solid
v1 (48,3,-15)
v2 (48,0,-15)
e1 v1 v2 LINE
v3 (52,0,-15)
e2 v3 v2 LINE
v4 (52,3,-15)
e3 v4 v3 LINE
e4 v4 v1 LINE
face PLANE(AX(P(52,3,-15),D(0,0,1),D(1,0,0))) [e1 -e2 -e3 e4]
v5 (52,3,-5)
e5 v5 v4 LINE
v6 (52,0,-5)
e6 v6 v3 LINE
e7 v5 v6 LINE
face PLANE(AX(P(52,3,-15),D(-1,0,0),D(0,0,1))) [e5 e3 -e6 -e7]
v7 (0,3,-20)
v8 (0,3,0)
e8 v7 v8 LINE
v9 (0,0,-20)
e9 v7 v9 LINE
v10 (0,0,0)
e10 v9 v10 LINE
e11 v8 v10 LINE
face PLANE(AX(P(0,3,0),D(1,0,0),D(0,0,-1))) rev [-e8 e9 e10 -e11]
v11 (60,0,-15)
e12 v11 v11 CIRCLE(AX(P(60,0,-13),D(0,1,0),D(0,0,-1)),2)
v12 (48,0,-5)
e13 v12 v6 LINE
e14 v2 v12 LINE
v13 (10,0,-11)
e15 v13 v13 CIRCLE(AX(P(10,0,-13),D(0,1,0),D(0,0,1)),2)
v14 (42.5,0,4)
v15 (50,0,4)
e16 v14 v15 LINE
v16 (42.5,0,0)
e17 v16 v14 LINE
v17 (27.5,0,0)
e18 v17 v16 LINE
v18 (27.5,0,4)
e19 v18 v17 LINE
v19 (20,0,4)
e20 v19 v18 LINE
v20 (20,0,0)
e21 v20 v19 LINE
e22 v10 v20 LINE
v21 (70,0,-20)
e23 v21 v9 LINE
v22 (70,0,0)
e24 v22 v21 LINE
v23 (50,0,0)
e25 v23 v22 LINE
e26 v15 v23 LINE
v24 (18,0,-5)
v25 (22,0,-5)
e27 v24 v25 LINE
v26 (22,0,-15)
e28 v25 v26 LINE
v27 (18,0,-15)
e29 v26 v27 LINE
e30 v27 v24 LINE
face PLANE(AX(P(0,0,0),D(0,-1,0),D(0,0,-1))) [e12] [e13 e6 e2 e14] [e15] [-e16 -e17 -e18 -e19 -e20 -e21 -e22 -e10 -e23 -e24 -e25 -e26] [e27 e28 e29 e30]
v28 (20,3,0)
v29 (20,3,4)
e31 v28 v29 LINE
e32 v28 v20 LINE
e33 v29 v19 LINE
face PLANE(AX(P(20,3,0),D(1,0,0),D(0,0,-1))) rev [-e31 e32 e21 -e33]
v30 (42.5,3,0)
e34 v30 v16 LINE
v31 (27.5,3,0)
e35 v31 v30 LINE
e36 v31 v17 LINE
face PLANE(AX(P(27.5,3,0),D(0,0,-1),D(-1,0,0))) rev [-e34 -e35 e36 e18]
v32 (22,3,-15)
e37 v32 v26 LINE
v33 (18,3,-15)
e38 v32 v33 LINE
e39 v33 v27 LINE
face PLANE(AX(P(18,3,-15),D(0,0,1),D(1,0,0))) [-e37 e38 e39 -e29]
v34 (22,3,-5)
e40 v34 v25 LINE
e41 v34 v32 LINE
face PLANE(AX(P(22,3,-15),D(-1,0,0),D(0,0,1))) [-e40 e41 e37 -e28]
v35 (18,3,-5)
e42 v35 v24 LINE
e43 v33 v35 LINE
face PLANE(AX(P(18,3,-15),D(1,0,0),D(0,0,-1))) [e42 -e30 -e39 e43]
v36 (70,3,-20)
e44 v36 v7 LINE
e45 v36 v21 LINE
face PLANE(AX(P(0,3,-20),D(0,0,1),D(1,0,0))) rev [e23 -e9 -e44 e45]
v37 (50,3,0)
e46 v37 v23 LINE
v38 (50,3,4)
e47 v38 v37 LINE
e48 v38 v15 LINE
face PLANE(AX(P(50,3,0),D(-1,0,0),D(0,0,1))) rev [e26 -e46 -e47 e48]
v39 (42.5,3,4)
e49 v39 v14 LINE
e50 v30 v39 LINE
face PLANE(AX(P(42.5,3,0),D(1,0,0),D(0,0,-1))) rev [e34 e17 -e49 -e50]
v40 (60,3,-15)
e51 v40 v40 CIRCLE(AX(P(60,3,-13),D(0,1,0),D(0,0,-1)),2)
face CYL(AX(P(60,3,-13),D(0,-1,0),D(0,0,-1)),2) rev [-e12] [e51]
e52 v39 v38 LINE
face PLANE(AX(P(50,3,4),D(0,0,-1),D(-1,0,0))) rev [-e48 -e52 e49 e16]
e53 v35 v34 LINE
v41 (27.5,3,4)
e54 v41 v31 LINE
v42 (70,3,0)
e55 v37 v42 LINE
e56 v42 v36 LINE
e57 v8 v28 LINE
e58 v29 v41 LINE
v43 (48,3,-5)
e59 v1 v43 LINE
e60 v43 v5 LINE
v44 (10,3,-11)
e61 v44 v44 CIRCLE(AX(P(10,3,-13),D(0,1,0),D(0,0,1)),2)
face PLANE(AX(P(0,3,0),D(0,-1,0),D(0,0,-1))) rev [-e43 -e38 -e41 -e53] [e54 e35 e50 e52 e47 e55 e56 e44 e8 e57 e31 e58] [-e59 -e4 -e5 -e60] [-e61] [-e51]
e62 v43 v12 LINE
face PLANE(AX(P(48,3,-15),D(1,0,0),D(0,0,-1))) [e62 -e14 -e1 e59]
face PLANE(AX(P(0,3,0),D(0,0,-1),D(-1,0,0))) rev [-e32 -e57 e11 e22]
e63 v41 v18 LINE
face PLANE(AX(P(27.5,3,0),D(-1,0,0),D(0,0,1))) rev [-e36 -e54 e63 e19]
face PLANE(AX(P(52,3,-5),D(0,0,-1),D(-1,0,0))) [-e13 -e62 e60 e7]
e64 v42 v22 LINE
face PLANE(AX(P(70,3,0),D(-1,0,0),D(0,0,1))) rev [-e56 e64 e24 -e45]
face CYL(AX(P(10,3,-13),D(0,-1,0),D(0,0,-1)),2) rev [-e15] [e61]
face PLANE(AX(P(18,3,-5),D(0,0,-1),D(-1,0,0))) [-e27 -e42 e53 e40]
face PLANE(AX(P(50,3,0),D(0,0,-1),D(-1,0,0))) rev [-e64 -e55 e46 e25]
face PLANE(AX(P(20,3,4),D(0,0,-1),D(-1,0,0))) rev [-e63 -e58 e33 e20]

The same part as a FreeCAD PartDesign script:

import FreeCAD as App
import Part
import Sketcher
Q = App.Units.Quantity

doc = App.newDocument("Part")
body = doc.addObject("PartDesign::Body", "Body")

# Sketch on XZ plane
sketch1 = body.newObject("Sketcher::SketchObject", "Sketch")
sketch1.AttachmentSupport = (doc.getObject("XZ_Plane"), [""])
sketch1.MapMode = "FlatFace"
sketch1.addGeometry([
    Part.LineSegment(App.Vector(0, 0, 0), App.Vector(20, 0, 0)),  # 0
    Part.LineSegment(App.Vector(20, 0, 0), App.Vector(20, 4, 0)),  # 1
    Part.LineSegment(App.Vector(20, 4, 0), App.Vector(27.5, 4, 0)),  # 2
    Part.LineSegment(App.Vector(27.5, 4, 0), App.Vector(27.5, 0, 0)),  # 3
    Part.LineSegment(App.Vector(27.5, 0, 0), App.Vector(42.5, 0, 0)),  # 4
    Part.LineSegment(App.Vector(42.5, 0, 0), App.Vector(42.5, 4, 0)),  # 5
    Part.LineSegment(App.Vector(42.5, 4, 0), App.Vector(50, 4, 0)),  # 6
    Part.LineSegment(App.Vector(50, 4, 0), App.Vector(50, 0, 0)),  # 7
    Part.LineSegment(App.Vector(50, 0, 0), App.Vector(70, 0, 0)),  # 8
    Part.LineSegment(App.Vector(70, 0, 0), App.Vector(70, -20, 0)),  # 9
    Part.LineSegment(App.Vector(70, -20, 0), App.Vector(0, -20, 0)),  # 10
    Part.LineSegment(App.Vector(0, -20, 0), App.Vector(0, 0, 0)),  # 11
    Part.LineSegment(App.Vector(22, -5, 0), App.Vector(18, -5, 0)),  # 12
    Part.LineSegment(App.Vector(18, -5, 0), App.Vector(18, -15, 0)),  # 13
    Part.LineSegment(App.Vector(18, -15, 0), App.Vector(22, -15, 0)),  # 14
    Part.LineSegment(App.Vector(22, -15, 0), App.Vector(22, -5, 0)),  # 15
    Part.Circle(App.Vector(10, -13, 0), App.Vector(0, 0, 1), 2),  # 16
    Part.LineSegment(App.Vector(52, -5, 0), App.Vector(48, -5, 0)),  # 17
    Part.LineSegment(App.Vector(48, -5, 0), App.Vector(48, -15, 0)),  # 18
    Part.LineSegment(App.Vector(48, -15, 0), App.Vector(52, -15, 0)),  # 19
    Part.LineSegment(App.Vector(52, -15, 0), App.Vector(52, -5, 0)),  # 20
    Part.Circle(App.Vector(60, -13, 0), App.Vector(0, 0, 1), 2),  # 21
], False)
sketch1.addConstraint([
    Sketcher.Constraint("Coincident", 0, 2, 1, 1),
    Sketcher.Constraint("Coincident", 1, 2, 2, 1),
    Sketcher.Constraint("Coincident", 2, 2, 3, 1),
    Sketcher.Constraint("Coincident", 3, 2, 4, 1),
    Sketcher.Constraint("Coincident", 4, 2, 5, 1),
    Sketcher.Constraint("Coincident", 5, 2, 6, 1),
    Sketcher.Constraint("Coincident", 6, 2, 7, 1),
    Sketcher.Constraint("Coincident", 7, 2, 8, 1),
    Sketcher.Constraint("Coincident", 8, 2, 9, 1),
    Sketcher.Constraint("Coincident", 9, 2, 10, 1),
    Sketcher.Constraint("Coincident", 10, 2, 11, 1),
    Sketcher.Constraint("Coincident", 11, 2, 0, 1),
    Sketcher.Constraint("Coincident", 12, 2, 13, 1),
    Sketcher.Constraint("Coincident", 13, 2, 14, 1),
    Sketcher.Constraint("Coincident", 14, 2, 15, 1),
    Sketcher.Constraint("Coincident", 15, 2, 12, 1),
    Sketcher.Constraint("Coincident", 17, 2, 18, 1),
    Sketcher.Constraint("Coincident", 18, 2, 19, 1),
    Sketcher.Constraint("Coincident", 19, 2, 20, 1),
    Sketcher.Constraint("Coincident", 20, 2, 17, 1),
    Sketcher.Constraint("Horizontal", 0),
    Sketcher.Constraint("Vertical", 1),
    Sketcher.Constraint("Horizontal", 2),
    Sketcher.Constraint("Vertical", 3),
    Sketcher.Constraint("Horizontal", 4),
    Sketcher.Constraint("Vertical", 5),
    Sketcher.Constraint("Horizontal", 6),
    Sketcher.Constraint("Vertical", 7),
    Sketcher.Constraint("Horizontal", 8),
    Sketcher.Constraint("Vertical", 9),
    Sketcher.Constraint("Horizontal", 10),
    Sketcher.Constraint("Vertical", 11),
    Sketcher.Constraint("Horizontal", 12),
    Sketcher.Constraint("Vertical", 13),
    Sketcher.Constraint("Horizontal", 14),
    Sketcher.Constraint("Vertical", 15),
    Sketcher.Constraint("Horizontal", 17),
    Sketcher.Constraint("Vertical", 18),
    Sketcher.Constraint("Horizontal", 19),
    Sketcher.Constraint("Vertical", 20),
    Sketcher.Constraint("Coincident", 11, 2, -1, 1),
    Sketcher.Constraint("Equal", 16, 21),
    Sketcher.Constraint("PointOnObject", 3, 2, -1),
    Sketcher.Constraint("PointOnObject", 7, 2, -1),
    Sketcher.Constraint("Horizontal", 16, 3, 21, 3),
    Sketcher.Constraint("Horizontal", 2, 2, 5, 2),
    Sketcher.Constraint("Horizontal", 15, 2, 17, 2),
    Sketcher.Constraint("Horizontal", 14, 2, 18, 2),
    Sketcher.Constraint("Equal", 2, 6),
    Sketcher.Constraint("Equal", 0, 8),
    Sketcher.Constraint("Equal", 14, 17),
    Sketcher.Constraint("Equal", 19, 1),
    Sketcher.Constraint("Equal", 8, 9),
    Sketcher.Constraint("Diameter", 16, Q("4 mm")),
    Sketcher.Constraint("DistanceX", 0, 1, 0, 2, Q("20 mm")),
    Sketcher.Constraint("DistanceX", 4, 1, 4, 2, Q("15 mm")),
    Sketcher.Constraint("DistanceX", 10, 2, 10, 1, Q("70 mm")),
    Sketcher.Constraint("DistanceX", 12, 2, 12, 1, Q("4 mm")),
    Sketcher.Constraint("DistanceY", 13, 2, 13, 1, Q("10 mm")),
    Sketcher.Constraint("DistanceX", -1, 1, 16, 3, Q("10 mm")),
    Sketcher.Constraint("DistanceY", 16, 3, -1, 1, Q("13 mm")),
    Sketcher.Constraint("DistanceX", -1, 1, 21, 3, Q("60 mm")),
    Sketcher.Constraint("DistanceX", -1, 1, 12, 2, Q("18 mm")),
    Sketcher.Constraint("DistanceY", 12, 2, -1, 1, Q("5 mm")),
    Sketcher.Constraint("DistanceX", -1, 1, 17, 2, Q("48 mm")),
])
pad1 = body.newObject("PartDesign::Pad", "Pad")
pad1.Profile = sketch1
pad1.Length = 3
pad1.Reversed = True

doc.recompute()
